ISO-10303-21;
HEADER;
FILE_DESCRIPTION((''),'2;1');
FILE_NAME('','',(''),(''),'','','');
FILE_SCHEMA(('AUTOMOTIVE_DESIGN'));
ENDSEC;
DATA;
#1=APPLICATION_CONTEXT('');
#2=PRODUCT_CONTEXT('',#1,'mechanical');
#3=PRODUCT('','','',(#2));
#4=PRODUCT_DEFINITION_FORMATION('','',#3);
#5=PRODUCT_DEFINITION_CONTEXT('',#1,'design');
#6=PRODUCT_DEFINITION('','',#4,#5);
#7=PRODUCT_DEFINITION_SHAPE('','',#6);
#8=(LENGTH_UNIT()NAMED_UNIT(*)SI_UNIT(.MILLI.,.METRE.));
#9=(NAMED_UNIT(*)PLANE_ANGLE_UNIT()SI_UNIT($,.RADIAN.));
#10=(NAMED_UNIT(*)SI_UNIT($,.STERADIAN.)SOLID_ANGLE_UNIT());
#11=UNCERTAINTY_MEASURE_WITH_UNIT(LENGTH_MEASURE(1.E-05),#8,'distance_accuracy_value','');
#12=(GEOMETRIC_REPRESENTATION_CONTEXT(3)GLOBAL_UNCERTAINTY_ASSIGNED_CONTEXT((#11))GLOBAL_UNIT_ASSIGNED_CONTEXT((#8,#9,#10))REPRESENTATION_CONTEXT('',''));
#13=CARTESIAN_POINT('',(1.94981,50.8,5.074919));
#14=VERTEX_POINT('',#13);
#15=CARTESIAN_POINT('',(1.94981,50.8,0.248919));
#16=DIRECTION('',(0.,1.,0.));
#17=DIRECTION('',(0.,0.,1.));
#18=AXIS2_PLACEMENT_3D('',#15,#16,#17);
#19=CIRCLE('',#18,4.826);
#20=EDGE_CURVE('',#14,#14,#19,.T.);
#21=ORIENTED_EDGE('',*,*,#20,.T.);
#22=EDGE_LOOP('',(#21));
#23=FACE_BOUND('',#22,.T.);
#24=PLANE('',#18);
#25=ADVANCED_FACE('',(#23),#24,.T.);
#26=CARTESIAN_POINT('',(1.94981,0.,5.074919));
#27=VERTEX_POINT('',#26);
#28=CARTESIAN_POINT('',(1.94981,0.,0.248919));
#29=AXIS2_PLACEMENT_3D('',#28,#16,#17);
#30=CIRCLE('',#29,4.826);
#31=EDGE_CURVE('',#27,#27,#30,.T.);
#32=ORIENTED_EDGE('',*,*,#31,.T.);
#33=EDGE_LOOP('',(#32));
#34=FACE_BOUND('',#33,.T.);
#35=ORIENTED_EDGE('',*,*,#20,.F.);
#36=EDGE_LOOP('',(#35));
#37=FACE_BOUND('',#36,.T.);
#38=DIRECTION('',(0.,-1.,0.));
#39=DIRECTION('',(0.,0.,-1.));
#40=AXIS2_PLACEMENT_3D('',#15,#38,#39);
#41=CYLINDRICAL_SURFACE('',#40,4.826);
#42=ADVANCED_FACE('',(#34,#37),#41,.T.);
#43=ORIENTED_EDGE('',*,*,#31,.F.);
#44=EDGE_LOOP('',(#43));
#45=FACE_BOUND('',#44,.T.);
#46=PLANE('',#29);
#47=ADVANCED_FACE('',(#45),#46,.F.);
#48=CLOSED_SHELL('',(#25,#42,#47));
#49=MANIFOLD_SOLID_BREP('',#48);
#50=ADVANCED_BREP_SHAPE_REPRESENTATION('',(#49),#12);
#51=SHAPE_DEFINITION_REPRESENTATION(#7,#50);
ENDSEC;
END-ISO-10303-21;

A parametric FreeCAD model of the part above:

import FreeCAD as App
import Part
import Sketcher

V = App.Vector
Q = App.Units.Quantity

doc = App.newDocument("Part")
body = doc.addObject("PartDesign::Body", "Body")

# Sketch on XZ plane
sketch1 = body.newObject("Sketcher::SketchObject", "Sketch")
sketch1.AttachmentSupport = (doc.getObject("XZ_Plane"), [""])
sketch1.MapMode = "FlatFace"
sketch1.addGeometry(Part.Circle(V(1.9, 0.2, 0), V(0, 0, 1), 4.8), False)
sketch1.addConstraint([
    Sketcher.Constraint("Diameter", 0, Q("0.38 in")),
    Sketcher.Constraint("DistanceY", -1, 1, 0, 3, Q("0.0098 in")),
    Sketcher.Constraint("DistanceX", -1, 1, 0, 3, Q("1.94981 mm")),
])
pad1 = body.newObject("PartDesign::Pad", "Pad")
pad1.Profile = sketch1
pad1.Length = Q("2 in")
pad1.Reversed = True

doc.recompute()
